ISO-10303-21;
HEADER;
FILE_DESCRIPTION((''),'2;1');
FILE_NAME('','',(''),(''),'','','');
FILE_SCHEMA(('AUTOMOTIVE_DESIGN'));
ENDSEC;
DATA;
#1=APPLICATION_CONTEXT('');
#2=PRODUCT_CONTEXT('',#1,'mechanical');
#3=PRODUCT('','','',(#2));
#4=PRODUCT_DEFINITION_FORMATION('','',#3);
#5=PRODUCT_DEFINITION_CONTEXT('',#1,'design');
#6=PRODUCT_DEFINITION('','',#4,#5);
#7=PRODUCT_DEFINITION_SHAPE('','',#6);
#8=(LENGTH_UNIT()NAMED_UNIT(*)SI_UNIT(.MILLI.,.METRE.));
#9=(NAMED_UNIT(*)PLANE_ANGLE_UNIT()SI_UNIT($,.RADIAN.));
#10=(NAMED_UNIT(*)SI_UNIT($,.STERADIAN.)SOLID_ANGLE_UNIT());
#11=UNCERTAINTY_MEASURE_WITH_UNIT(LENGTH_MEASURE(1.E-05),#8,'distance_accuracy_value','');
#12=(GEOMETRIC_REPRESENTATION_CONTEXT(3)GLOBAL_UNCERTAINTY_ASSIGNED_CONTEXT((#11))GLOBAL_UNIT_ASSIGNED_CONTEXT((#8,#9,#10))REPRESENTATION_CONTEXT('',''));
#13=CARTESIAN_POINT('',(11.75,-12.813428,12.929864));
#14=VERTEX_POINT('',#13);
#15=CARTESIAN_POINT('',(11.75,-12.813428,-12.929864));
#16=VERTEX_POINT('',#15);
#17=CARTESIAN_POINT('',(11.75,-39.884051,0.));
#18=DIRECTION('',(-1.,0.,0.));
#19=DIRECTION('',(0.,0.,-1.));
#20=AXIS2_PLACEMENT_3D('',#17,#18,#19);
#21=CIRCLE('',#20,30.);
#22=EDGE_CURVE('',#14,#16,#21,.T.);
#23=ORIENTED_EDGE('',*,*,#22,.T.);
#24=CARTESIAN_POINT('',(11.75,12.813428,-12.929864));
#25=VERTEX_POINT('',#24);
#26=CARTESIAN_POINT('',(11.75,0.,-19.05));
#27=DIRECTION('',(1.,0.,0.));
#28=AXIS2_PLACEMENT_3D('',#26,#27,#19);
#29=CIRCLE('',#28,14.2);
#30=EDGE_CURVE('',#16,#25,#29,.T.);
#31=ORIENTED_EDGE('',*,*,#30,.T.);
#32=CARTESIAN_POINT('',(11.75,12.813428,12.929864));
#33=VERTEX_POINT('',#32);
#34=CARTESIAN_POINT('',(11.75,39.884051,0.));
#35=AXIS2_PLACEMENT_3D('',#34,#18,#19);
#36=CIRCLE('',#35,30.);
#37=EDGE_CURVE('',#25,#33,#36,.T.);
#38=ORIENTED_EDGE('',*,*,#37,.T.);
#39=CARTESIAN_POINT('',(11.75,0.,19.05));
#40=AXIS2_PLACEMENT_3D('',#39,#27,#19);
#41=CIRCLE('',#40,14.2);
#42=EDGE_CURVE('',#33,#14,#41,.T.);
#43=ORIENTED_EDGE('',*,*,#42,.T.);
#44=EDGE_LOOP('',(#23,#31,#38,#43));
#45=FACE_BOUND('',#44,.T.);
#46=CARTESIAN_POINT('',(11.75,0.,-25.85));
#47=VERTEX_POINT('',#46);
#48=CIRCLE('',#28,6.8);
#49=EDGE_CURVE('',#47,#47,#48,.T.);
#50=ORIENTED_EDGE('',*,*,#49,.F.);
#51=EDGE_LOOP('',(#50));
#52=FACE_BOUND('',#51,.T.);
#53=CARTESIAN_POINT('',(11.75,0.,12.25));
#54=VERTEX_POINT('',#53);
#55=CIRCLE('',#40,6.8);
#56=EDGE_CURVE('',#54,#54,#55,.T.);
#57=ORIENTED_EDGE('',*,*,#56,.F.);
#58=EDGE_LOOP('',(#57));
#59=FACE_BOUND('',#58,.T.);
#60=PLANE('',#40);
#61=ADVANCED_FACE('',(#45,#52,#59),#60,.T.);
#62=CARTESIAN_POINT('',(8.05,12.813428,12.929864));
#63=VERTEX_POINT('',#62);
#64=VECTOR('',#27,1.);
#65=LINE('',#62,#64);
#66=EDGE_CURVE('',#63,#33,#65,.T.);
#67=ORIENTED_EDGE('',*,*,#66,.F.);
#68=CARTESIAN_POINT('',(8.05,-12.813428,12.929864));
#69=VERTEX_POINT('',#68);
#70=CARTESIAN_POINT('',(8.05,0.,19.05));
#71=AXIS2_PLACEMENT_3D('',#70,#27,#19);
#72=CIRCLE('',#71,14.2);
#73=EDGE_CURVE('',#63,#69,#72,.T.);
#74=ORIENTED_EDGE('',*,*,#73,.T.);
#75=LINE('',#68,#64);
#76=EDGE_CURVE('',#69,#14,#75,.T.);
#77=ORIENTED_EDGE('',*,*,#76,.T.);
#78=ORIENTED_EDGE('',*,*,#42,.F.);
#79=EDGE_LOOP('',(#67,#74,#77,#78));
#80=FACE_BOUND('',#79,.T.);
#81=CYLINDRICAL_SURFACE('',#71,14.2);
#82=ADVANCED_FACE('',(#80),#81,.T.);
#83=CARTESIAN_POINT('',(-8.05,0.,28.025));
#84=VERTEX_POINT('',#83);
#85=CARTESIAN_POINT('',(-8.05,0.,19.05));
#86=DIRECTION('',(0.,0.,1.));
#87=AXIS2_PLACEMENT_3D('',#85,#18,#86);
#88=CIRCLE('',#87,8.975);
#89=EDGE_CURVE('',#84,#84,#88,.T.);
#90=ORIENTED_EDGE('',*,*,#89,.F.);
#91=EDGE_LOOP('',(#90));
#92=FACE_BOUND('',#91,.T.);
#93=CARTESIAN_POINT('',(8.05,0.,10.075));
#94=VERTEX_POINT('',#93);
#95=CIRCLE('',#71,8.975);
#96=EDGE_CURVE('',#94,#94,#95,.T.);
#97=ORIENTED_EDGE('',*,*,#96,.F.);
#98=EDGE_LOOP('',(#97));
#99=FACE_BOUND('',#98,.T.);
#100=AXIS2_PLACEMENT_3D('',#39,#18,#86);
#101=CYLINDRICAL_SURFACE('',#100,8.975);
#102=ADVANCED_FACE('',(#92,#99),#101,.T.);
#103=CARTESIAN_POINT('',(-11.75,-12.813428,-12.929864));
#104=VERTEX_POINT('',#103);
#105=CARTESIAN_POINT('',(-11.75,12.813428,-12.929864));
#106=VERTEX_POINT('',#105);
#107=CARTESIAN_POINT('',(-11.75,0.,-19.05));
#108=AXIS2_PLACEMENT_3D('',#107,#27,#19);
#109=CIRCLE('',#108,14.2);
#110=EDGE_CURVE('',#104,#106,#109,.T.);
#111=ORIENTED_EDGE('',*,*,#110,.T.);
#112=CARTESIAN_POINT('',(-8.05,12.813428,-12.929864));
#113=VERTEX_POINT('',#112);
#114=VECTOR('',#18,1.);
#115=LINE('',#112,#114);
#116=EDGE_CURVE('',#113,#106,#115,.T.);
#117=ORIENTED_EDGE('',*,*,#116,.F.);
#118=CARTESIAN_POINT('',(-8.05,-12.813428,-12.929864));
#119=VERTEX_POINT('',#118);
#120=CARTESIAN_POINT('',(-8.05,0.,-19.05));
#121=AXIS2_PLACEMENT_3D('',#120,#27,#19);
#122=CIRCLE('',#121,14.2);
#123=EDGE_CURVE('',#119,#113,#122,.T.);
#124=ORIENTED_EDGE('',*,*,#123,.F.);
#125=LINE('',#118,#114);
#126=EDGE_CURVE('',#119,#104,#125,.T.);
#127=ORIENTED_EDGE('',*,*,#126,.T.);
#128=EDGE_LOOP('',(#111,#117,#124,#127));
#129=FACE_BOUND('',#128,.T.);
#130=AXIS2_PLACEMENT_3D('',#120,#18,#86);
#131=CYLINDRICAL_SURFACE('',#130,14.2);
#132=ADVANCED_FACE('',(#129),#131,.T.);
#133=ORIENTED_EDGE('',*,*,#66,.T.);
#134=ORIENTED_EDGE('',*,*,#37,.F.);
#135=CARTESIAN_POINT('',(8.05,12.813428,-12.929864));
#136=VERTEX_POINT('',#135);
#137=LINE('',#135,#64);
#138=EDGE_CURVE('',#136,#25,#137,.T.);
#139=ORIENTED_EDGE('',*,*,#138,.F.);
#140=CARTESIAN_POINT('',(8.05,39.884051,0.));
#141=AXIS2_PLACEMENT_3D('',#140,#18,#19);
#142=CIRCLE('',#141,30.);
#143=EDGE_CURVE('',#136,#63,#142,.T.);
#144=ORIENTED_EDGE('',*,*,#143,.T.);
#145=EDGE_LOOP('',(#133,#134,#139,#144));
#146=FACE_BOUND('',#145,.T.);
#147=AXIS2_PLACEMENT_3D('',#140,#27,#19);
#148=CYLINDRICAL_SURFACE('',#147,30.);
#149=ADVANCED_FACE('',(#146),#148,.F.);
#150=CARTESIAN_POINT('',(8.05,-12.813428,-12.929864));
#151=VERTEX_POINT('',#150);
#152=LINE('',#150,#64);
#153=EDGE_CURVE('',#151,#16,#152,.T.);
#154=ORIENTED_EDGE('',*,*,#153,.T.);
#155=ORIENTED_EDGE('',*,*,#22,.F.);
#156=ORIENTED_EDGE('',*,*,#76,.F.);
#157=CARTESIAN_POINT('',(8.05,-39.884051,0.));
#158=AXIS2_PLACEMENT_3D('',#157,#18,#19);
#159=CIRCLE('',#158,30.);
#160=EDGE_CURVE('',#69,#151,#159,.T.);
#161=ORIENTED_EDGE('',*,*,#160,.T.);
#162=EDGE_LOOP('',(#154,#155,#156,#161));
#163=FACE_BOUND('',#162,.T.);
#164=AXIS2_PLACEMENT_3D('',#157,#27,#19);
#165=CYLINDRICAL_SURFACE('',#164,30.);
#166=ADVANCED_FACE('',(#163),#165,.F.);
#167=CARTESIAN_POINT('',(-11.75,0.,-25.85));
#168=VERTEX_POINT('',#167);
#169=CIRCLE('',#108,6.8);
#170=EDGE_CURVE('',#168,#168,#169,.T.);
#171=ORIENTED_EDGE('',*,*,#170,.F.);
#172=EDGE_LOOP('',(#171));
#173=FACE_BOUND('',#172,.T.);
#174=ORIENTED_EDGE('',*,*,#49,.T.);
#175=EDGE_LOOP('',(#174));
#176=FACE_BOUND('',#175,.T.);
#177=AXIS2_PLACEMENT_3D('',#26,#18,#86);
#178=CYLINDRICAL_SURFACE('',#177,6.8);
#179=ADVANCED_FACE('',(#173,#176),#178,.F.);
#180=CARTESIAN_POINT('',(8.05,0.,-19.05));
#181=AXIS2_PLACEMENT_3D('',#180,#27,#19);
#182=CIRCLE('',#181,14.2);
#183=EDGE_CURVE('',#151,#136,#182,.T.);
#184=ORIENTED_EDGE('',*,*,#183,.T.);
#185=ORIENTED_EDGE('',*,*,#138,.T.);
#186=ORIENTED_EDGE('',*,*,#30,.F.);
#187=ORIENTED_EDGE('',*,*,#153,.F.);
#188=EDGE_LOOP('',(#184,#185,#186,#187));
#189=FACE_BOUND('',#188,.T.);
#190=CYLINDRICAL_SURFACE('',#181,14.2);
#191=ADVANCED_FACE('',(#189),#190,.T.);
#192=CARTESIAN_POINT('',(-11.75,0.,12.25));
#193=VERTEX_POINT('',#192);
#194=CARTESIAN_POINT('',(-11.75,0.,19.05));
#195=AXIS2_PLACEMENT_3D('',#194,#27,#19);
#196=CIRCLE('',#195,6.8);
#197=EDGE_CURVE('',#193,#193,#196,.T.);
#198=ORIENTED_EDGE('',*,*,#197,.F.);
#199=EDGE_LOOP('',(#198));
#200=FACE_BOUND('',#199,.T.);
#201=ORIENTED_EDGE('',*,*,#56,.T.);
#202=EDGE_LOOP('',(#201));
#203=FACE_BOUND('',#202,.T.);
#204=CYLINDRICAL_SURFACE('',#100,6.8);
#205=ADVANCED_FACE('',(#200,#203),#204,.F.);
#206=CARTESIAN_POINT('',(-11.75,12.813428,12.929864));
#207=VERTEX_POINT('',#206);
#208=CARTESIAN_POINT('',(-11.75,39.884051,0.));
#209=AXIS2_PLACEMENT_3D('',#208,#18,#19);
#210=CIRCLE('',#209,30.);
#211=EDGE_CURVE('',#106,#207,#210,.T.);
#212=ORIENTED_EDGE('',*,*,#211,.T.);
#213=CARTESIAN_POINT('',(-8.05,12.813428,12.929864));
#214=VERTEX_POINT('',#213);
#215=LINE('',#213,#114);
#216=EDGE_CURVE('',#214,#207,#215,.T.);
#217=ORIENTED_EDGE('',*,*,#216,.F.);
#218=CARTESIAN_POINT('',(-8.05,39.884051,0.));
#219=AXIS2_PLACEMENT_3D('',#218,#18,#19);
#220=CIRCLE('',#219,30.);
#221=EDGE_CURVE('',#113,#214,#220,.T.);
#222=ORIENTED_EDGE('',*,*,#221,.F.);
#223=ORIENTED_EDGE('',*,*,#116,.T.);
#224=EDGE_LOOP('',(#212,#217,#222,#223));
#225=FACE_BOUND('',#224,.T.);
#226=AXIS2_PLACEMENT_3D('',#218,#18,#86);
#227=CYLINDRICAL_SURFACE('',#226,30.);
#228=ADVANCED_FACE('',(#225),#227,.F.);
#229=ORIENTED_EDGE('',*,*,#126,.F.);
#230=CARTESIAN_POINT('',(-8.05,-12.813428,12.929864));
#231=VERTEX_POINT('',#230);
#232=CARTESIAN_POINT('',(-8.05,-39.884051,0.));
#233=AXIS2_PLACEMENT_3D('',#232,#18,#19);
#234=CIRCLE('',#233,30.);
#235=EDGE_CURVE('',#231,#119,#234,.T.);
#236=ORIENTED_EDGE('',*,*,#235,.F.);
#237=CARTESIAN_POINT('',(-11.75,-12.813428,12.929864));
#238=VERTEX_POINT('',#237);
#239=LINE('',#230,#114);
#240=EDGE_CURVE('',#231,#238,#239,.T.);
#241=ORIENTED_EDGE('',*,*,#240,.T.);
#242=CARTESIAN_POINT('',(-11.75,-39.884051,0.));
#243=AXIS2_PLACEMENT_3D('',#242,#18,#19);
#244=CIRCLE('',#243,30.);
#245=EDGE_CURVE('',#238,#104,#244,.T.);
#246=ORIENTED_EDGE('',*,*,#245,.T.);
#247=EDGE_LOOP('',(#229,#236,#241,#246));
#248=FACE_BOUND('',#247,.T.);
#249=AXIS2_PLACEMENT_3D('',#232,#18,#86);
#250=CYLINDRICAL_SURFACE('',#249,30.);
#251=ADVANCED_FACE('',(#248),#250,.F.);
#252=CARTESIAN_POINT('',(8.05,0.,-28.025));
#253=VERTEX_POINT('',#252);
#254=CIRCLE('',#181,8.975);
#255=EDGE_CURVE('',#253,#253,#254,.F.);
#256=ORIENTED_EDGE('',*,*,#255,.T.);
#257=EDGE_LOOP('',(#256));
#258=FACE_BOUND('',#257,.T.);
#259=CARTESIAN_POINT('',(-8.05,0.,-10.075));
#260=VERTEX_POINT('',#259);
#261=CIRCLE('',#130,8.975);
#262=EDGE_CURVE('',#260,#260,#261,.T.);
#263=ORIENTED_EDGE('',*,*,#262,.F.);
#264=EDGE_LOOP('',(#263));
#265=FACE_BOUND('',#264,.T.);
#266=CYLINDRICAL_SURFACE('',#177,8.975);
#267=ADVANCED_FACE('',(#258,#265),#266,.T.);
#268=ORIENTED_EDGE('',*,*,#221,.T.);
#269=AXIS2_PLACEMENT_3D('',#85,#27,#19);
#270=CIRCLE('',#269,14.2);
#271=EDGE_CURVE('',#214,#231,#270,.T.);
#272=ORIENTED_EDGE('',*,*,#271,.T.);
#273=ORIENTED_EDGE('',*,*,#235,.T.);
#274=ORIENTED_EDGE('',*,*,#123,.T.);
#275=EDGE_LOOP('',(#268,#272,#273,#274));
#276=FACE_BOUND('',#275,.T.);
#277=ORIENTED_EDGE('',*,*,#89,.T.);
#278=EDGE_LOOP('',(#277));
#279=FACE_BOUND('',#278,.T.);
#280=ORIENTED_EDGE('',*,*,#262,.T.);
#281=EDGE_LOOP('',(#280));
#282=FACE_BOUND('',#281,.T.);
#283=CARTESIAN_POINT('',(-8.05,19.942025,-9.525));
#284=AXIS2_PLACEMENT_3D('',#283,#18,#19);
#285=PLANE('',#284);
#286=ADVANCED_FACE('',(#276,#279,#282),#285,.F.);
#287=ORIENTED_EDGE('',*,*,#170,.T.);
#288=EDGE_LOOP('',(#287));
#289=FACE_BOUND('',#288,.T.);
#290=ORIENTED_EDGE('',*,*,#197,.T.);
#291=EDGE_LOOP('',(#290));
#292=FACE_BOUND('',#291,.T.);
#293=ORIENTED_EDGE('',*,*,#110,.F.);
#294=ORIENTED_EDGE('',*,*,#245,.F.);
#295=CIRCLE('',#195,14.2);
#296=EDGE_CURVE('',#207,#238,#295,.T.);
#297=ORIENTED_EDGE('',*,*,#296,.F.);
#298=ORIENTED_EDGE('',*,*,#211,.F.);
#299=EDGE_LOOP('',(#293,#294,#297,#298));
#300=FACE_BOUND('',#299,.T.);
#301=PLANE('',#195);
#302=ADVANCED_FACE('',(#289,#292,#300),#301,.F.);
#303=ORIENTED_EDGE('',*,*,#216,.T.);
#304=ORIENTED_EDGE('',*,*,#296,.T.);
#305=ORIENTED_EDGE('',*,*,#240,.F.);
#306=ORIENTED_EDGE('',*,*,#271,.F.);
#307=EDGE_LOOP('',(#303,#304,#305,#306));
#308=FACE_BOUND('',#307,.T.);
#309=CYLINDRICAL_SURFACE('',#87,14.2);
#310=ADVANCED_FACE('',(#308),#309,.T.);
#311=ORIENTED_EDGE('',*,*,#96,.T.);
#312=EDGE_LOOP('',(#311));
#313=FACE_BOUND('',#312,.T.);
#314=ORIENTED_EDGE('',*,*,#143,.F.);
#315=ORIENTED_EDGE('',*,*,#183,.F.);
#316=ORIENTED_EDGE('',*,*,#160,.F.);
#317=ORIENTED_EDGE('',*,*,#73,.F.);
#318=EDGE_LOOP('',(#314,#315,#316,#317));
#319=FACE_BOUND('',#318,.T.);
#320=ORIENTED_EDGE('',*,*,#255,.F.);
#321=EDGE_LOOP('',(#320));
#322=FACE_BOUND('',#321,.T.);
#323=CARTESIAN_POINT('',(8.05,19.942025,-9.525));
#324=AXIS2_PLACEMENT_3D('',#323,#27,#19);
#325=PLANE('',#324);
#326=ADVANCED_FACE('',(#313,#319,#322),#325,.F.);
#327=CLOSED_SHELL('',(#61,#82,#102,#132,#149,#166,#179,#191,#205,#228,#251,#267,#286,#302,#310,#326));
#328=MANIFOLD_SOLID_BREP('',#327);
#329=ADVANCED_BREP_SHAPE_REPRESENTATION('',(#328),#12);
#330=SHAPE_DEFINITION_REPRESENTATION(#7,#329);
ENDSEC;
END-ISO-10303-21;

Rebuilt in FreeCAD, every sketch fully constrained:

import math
import FreeCAD as App
import Part
import Sketcher

V = App.Vector

doc = App.newDocument("Part")
body = doc.addObject("PartDesign::Body", "Body")

sketch1 = doc.addObject("Sketcher::SketchObject", "Sketch")
body.addObject(sketch1)
sketch1.AttachmentSupport = (doc.YZ_Plane, [""])
sketch1.MapMode = "FlatFace"
sketch1.addGeometry(Part.Circle(V(0, 19.05, 0), V(0, 0, 1), 8.975), False)
sketch1.addGeometry(Part.Circle(V(0, 19.05, 0), V(0, 0, 1), 6.8), False)
sketch1.addConstraint(Sketcher.Constraint("Coincident", 1, 3, 0, 3))
sketch1.addConstraint(Sketcher.Constraint("PointOnObject", 0, 3, -2))
sketch1.addConstraint(Sketcher.Constraint("Diameter", 1, 13.6))
sketch1.addConstraint(Sketcher.Constraint("Diameter", 0, 17.95))
sketch1.addConstraint(Sketcher.Constraint("DistanceY", -1, 1, 0, 3, 19.05))
pad1 = doc.addObject("PartDesign::Pad", "Pad")
body.addObject(pad1)
pad1.Profile = sketch1
pad1.Length = 23.5
pad1.Midplane = True
body2 = doc.addObject("PartDesign::Body", "Body001")

sketch2 = doc.addObject("Sketcher::SketchObject", "Sketch001")
body2.addObject(sketch2)
sketch2.AttachmentSupport = (doc.getObject("YZ_Plane001"), [""])
sketch2.MapMode = "FlatFace"
sketch2.addGeometry(Part.Circle(V(0, -19.05, 0), V(0, 0, 1), 8.975), False)
sketch2.addGeometry(Part.Circle(V(0, -19.05, 0), V(0, 0, 1), 6.8), False)
sketch2.addConstraint(Sketcher.Constraint("Coincident", 1, 3, 0, 3))
sketch2.addConstraint(Sketcher.Constraint("PointOnObject", 0, 3, -2))
sketch2.addConstraint(Sketcher.Constraint("Diameter", 1, 13.6))
sketch2.addConstraint(Sketcher.Constraint("Diameter", 0, 17.95))
sketch2.addConstraint(Sketcher.Constraint("DistanceY", 0, 3, -1, 1, 19.05))
pad2 = doc.addObject("PartDesign::Pad", "Pad001")
body2.addObject(pad2)
pad2.Profile = sketch2
pad2.Length = 23.5
pad2.Midplane = True
body.AllowCompound = True
doc.recompute()

boolean = doc.addObject("PartDesign::Boolean", "Boolean")
body.addObject(boolean)
boolean.Type = "Fuse"
boolean.addObjects([body2])

sketch3 = doc.addObject("Sketcher::SketchObject", "Sketch002")
body.addObject(sketch3)
sketch3.AttachmentSupport = (doc.YZ_Plane, [""])
sketch3.MapMode = "FlatFace"
sketch3.AttachmentOffset = App.Placement(V(0, 0, 11.75), App.Rotation())
sketch3.addGeometry(Part.ArcOfCircle(Part.Circle(V(0, -19.05, 0), V(0, 0, 1), 14.2), math.radians(154.469248), math.radians(385.530752)), False)
sketch3.addGeometry(Part.ArcOfCircle(Part.Circle(V(39.884051, 0, 0), V(0, 0, 1), 30), math.radians(154.469248), math.radians(205.530752)), False)
sketch3.addGeometry(Part.ArcOfCircle(Part.Circle(V(0, 19.05, 0), V(0, 0, 1), 14.2), math.radians(-25.530752), math.radians(205.530752)), False)
sketch3.addGeometry(Part.ArcOfCircle(Part.Circle(V(-39.884051, 0, 0), V(0, 0, 1), 30), math.radians(-25.530752), math.radians(25.530752)), False)
sketch3.addGeometry(Part.Circle(V(0, 19.05, 0), V(0, 0, 1), 8.975), False)
sketch3.addGeometry(Part.Circle(V(0, -19.05, 0), V(0, 0, 1), 8.975), False)
sketch3.addConstraint(Sketcher.Constraint("Tangent", 0, 2, 1, 2))
sketch3.addConstraint(Sketcher.Constraint("Tangent", 1, 1, 2, 1))
sketch3.addConstraint(Sketcher.Constraint("Tangent", 2, 2, 3, 2))
sketch3.addConstraint(Sketcher.Constraint("Tangent", 3, 1, 0, 1))
sketch3.addConstraint(Sketcher.Constraint("Coincident", 4, 3, 2, 3))
sketch3.addConstraint(Sketcher.Constraint("Coincident", 5, 3, 0, 3))
sketch3.addConstraint(Sketcher.Constraint("Equal", 0, 2))
sketch3.addConstraint(Sketcher.Constraint("Equal", 1, 3))
sketch3.addConstraint(Sketcher.Constraint("Equal", 4, 5))
sketch3.addConstraint(Sketcher.Constraint("Symmetric", 0, 3, 2, 3, -1, 1))
sketch3.addConstraint(Sketcher.Constraint("PointOnObject", 0, 3, -2))
sketch3.addConstraint(Sketcher.Constraint("Radius", 1, 30.0))
sketch3.addConstraint(Sketcher.Constraint("Radius", 0, 14.2))
sketch3.addConstraint(Sketcher.Constraint("Diameter", 4, 17.95))
sketch3.addConstraint(Sketcher.Constraint("DistanceY", 0, 3, 2, 3, 38.1))
pad3 = doc.addObject("PartDesign::Pad", "Pad002")
body.addObject(pad3)
pad3.Profile = sketch3
pad3.Length = 3.7
pad3.Reversed = True
doc.recompute()

mirrored = doc.addObject("PartDesign::Mirrored", "Mirrored")
body.addObject(mirrored)
mirrored.Originals = [pad3]
mirrored.MirrorPlane = (doc.YZ_Plane, [""])
body.Tip = mirrored

doc.recompute()
